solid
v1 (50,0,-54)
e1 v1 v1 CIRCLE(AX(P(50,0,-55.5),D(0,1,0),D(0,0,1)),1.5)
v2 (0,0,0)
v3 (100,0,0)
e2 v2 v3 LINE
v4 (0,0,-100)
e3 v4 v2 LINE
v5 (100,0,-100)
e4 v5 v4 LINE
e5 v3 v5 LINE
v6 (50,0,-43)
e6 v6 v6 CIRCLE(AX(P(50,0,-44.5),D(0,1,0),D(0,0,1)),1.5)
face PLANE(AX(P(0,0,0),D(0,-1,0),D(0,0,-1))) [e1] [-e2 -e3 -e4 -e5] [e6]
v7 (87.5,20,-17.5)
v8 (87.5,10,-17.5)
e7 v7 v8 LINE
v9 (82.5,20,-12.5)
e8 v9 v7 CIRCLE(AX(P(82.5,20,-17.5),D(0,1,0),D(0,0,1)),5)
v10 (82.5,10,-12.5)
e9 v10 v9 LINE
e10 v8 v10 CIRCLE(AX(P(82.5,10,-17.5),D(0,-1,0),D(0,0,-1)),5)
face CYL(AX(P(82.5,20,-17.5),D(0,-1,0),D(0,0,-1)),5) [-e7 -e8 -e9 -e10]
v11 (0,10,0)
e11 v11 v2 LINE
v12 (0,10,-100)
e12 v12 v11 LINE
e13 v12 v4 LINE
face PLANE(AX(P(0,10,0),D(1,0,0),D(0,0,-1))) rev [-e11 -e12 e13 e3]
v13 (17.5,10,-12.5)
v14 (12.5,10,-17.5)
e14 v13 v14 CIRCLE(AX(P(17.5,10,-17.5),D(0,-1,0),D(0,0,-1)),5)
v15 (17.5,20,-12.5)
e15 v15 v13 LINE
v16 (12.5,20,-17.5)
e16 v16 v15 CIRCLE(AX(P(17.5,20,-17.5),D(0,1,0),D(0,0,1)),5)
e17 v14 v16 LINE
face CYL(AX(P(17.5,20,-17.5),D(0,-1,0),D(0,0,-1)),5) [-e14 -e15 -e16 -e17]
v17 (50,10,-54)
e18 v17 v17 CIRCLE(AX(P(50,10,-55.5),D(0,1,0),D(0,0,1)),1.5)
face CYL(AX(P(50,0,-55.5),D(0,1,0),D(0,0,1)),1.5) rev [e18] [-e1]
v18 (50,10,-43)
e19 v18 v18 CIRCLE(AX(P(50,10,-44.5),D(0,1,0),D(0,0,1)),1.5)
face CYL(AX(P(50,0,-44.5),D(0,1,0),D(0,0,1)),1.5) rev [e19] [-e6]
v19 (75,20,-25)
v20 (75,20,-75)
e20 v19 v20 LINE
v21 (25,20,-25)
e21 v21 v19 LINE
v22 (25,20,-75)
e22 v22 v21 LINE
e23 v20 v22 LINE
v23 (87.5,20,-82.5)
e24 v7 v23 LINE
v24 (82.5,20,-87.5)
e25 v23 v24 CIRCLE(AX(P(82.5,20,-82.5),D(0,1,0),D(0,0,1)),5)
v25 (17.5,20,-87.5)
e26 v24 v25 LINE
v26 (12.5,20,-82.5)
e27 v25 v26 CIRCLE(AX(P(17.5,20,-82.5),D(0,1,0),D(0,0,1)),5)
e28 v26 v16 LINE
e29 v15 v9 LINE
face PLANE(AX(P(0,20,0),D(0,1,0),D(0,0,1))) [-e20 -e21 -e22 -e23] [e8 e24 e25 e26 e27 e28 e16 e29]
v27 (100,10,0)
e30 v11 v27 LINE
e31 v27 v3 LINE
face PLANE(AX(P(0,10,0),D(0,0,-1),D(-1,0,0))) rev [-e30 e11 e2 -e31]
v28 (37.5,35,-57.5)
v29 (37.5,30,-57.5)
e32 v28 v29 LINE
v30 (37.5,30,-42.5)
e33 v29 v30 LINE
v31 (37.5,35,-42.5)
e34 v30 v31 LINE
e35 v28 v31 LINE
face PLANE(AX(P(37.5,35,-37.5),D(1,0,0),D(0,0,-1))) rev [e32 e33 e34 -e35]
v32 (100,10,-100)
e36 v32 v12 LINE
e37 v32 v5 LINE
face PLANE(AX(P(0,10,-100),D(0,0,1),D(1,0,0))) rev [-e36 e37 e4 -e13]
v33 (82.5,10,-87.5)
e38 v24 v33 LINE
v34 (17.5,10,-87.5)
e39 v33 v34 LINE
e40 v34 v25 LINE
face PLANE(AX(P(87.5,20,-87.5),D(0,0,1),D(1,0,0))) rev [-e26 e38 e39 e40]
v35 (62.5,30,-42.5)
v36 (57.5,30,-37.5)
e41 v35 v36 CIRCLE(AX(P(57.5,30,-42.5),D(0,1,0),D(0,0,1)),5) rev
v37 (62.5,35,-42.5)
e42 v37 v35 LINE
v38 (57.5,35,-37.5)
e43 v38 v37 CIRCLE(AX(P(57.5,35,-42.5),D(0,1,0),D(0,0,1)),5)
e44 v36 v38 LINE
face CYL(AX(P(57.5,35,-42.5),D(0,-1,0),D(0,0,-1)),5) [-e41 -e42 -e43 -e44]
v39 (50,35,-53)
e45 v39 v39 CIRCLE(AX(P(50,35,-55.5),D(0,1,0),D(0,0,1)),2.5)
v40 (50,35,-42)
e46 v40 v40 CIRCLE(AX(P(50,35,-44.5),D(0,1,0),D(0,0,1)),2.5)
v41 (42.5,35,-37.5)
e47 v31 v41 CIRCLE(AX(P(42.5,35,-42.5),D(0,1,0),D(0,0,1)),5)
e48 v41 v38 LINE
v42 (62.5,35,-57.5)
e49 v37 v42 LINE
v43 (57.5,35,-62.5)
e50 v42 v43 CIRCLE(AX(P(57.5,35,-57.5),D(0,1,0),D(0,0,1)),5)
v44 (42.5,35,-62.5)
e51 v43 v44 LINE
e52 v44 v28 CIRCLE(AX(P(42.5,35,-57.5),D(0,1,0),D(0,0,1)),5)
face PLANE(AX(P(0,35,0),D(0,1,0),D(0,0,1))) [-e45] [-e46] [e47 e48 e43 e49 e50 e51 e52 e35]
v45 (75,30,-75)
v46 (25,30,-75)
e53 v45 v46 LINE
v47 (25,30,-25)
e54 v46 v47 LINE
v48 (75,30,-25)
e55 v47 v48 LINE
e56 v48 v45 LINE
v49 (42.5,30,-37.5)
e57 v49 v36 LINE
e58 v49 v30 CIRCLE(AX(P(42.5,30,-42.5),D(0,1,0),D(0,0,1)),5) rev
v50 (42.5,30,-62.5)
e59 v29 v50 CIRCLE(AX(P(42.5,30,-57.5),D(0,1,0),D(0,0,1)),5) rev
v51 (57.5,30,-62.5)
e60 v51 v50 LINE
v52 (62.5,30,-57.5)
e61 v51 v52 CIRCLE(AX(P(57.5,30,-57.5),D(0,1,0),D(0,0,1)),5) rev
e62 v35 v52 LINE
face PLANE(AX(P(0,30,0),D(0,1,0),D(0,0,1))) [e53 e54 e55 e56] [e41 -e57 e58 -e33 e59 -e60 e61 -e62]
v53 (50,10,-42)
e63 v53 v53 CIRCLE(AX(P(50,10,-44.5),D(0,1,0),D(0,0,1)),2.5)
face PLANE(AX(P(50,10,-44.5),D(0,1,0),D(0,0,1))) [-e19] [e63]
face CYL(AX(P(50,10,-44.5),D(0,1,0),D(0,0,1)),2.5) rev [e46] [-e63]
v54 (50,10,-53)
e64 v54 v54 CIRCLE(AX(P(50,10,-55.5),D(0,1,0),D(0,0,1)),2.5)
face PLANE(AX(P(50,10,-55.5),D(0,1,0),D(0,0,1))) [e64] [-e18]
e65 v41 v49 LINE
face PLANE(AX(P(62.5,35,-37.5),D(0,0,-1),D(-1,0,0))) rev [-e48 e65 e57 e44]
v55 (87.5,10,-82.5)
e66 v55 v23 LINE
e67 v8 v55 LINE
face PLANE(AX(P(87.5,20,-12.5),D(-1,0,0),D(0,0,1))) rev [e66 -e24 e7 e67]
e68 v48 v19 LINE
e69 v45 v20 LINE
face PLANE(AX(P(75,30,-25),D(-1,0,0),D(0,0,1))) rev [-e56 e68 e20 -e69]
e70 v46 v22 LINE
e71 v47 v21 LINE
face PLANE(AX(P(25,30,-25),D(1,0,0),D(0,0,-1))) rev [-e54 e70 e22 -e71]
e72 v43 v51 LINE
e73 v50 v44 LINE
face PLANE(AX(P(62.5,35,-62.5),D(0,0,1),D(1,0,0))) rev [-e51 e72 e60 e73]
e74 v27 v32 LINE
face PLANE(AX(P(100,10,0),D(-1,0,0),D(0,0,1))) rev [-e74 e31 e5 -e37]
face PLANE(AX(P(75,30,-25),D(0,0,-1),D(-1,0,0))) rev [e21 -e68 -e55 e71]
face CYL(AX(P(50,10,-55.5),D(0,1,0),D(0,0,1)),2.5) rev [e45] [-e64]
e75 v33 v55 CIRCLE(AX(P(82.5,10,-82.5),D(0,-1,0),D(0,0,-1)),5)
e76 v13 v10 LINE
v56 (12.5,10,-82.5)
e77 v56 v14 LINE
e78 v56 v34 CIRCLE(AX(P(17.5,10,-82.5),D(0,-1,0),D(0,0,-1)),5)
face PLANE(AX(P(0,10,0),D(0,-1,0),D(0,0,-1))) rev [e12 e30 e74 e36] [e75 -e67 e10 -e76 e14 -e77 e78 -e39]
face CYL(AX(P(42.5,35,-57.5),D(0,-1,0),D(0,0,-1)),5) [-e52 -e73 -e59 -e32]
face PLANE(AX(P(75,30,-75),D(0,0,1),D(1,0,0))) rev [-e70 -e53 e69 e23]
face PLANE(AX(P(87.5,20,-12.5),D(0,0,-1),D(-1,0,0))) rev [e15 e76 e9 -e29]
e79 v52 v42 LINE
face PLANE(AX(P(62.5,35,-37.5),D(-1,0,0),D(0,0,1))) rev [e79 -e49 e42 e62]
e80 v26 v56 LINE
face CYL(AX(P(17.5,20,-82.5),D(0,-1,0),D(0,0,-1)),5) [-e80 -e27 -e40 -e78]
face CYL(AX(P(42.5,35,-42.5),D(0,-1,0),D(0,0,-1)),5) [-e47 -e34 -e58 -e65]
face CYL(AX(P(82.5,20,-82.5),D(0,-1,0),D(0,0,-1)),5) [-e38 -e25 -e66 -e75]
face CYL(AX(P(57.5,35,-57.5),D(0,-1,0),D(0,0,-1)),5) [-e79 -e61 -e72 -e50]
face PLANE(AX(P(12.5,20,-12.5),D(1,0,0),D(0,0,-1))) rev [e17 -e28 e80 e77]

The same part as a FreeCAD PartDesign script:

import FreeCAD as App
import Part
import Sketcher
from FreeCAD import Vector
Q = App.Units.Quantity


def edges_at(feature, points):
    """Names of the edges that pass closest to the given points."""
    edges = feature.Shape.Edges
    near = lambda p: min(range(len(edges)), key=lambda i: edges[i].distToShape(Part.Vertex(*p))[0])
    return sorted({f"Edge{near(p) + 1}" for p in points})

doc = App.newDocument("Part")
body = doc.addObject("PartDesign::Body", "Body")

# Sketch on XZ plane
sketch1 = doc.addObject("Sketcher::SketchObject", "Sketch")
body.addObject(sketch1)
sketch1.AttachmentSupport = (doc.XZ_Plane, [""])
sketch1.MapMode = "FlatFace"
sketch1.addGeometry([
    Part.LineSegment(Vector(0, -100, 0), Vector(0, 0, 0)),
    Part.LineSegment(Vector(0, 0, 0), Vector(100, 0, 0)),
    Part.LineSegment(Vector(100, 0, 0), Vector(100, -100, 0)),
    Part.LineSegment(Vector(100, -100, 0), Vector(0, -100, 0)),
], False)
sketch1.addConstraint([
    Sketcher.Constraint("Coincident", 0, 2, 1, 1),
    Sketcher.Constraint("Coincident", 1, 2, 2, 1),
    Sketcher.Constraint("Coincident", 2, 2, 3, 1),
    Sketcher.Constraint("Coincident", 3, 2, 0, 1),
    Sketcher.Constraint("Vertical", 0),
    Sketcher.Constraint("Horizontal", 1),
    Sketcher.Constraint("Vertical", 2),
    Sketcher.Constraint("Horizontal", 3),
    Sketcher.Constraint("Coincident", 0, 2, -1, 1),
    Sketcher.Constraint("Equal", 3, 0),
    Sketcher.Constraint("DistanceX", 1, 1, 1, 2, Q("100 mm")),
])
pad1 = doc.addObject("PartDesign::Pad", "Pad")
body.addObject(pad1)
pad1.Profile = sketch1
pad1.Length = 10
pad1.Reversed = True

# Sketch on XZ plane
sketch2 = doc.addObject("Sketcher::SketchObject", "Sketch001")
body.addObject(sketch2)
sketch2.AttachmentSupport = (doc.XZ_Plane, [""])
sketch2.MapMode = "FlatFace"
sketch2.AttachmentOffset = App.Placement(Vector(0, 0, -10), App.Rotation())
sketch2.addGeometry([
    Part.LineSegment(Vector(12, -88, 0), Vector(12, -12, 0)),
    Part.LineSegment(Vector(12, -12, 0), Vector(88, -12, 0)),
    Part.LineSegment(Vector(88, -12, 0), Vector(88, -88, 0)),
    Part.LineSegment(Vector(88, -88, 0), Vector(12, -88, 0)),
], False)
sketch2.addConstraint([
    Sketcher.Constraint("Coincident", 0, 2, 1, 1),
    Sketcher.Constraint("Coincident", 1, 2, 2, 1),
    Sketcher.Constraint("Coincident", 2, 2, 3, 1),
    Sketcher.Constraint("Coincident", 3, 2, 0, 1),
    Sketcher.Constraint("Vertical", 0),
    Sketcher.Constraint("Horizontal", 1),
    Sketcher.Constraint("Vertical", 2),
    Sketcher.Constraint("Horizontal", 3),
    Sketcher.Constraint("Equal", 3, 0),
    Sketcher.Constraint("DistanceX", 1, 1, 1, 2, Q("75 mm")),
    Sketcher.Constraint("DistanceX", -1, 1, 0, 2, Q("12.5 mm")),
    Sketcher.Constraint("DistanceY", 0, 2, -1, 1, Q("12.5 mm")),
])
pad2 = doc.addObject("PartDesign::Pad", "Pad001")
body.addObject(pad2)
pad2.Profile = sketch2
pad2.Length = 10
pad2.Reversed = True

# Sketch on XZ plane
sketch3 = doc.addObject("Sketcher::SketchObject", "Sketch002")
body.addObject(sketch3)
sketch3.AttachmentSupport = (doc.XZ_Plane, [""])
sketch3.MapMode = "FlatFace"
sketch3.AttachmentOffset = App.Placement(Vector(0, 0, -20), App.Rotation())
sketch3.addGeometry([
    Part.LineSegment(Vector(25, -75, 0), Vector(25, -25, 0)),
    Part.LineSegment(Vector(25, -25, 0), Vector(75, -25, 0)),
    Part.LineSegment(Vector(75, -25, 0), Vector(75, -75, 0)),
    Part.LineSegment(Vector(75, -75, 0), Vector(25, -75, 0)),
], False)
sketch3.addConstraint([
    Sketcher.Constraint("Coincident", 0, 2, 1, 1),
    Sketcher.Constraint("Coincident", 1, 2, 2, 1),
    Sketcher.Constraint("Coincident", 2, 2, 3, 1),
    Sketcher.Constraint("Coincident", 3, 2, 0, 1),
    Sketcher.Constraint("Vertical", 0),
    Sketcher.Constraint("Horizontal", 1),
    Sketcher.Constraint("Vertical", 2),
    Sketcher.Constraint("Horizontal", 3),
    Sketcher.Constraint("Equal", 3, 0),
    Sketcher.Constraint("DistanceX", 1, 1, 1, 2, Q("50 mm")),
    Sketcher.Constraint("DistanceX", -1, 1, 0, 2, Q("25 mm")),
    Sketcher.Constraint("DistanceY", 0, 2, -1, 1, Q("25 mm")),
])
pad3 = doc.addObject("PartDesign::Pad", "Pad002")
body.addObject(pad3)
pad3.Profile = sketch3
pad3.Length = 10
pad3.Reversed = True

# Sketch on XZ plane
sketch4 = doc.addObject("Sketcher::SketchObject", "Sketch003")
body.addObject(sketch4)
sketch4.AttachmentSupport = (doc.XZ_Plane, [""])
sketch4.MapMode = "FlatFace"
sketch4.AttachmentOffset = App.Placement(Vector(0, 0, -30), App.Rotation())
sketch4.addGeometry([
    Part.LineSegment(Vector(38, -62, 0), Vector(38, -38, 0)),
    Part.LineSegment(Vector(38, -38, 0), Vector(62, -38, 0)),
    Part.LineSegment(Vector(62, -38, 0), Vector(62, -62, 0)),
    Part.LineSegment(Vector(62, -62, 0), Vector(38, -62, 0)),
], False)
sketch4.addConstraint([
    Sketcher.Constraint("Coincident", 0, 2, 1, 1),
    Sketcher.Constraint("Coincident", 1, 2, 2, 1),
    Sketcher.Constraint("Coincident", 2, 2, 3, 1),
    Sketcher.Constraint("Coincident", 3, 2, 0, 1),
    Sketcher.Constraint("Vertical", 0),
    Sketcher.Constraint("Horizontal", 1),
    Sketcher.Constraint("Vertical", 2),
    Sketcher.Constraint("Horizontal", 3),
    Sketcher.Constraint("Equal", 3, 0),
    Sketcher.Constraint("DistanceX", 1, 1, 1, 2, Q("25 mm")),
    Sketcher.Constraint("DistanceX", -1, 1, 0, 2, Q("37.5 mm")),
    Sketcher.Constraint("DistanceY", 0, 2, -1, 1, Q("37.5 mm")),
])
pad4 = doc.addObject("PartDesign::Pad", "Pad003")
body.addObject(pad4)
pad4.Profile = sketch4
pad4.Length = 5
pad4.Reversed = True

# Sketch on XZ plane
sketch5 = doc.addObject("Sketcher::SketchObject", "Sketch004")
body.addObject(sketch5)
sketch5.AttachmentSupport = (doc.XZ_Plane, [""])
sketch5.MapMode = "FlatFace"
sketch5.AttachmentOffset = App.Placement(Vector(0, 0, -35), App.Rotation())
sketch5.addGeometry([
    Part.Circle(Vector(50, -55.5, 0), Vector(0, 0, 1), 2.5),
    Part.Circle(Vector(50, -44.5, 0), Vector(0, 0, 1), 2.5),
], False)
sketch5.addConstraint([
    Sketcher.Constraint("Equal", 0, 1),
    Sketcher.Constraint("Vertical", 0, 3, 1, 3),
    Sketcher.Constraint("Diameter", 0, Q("5 mm")),
    Sketcher.Constraint("DistanceX", -1, 1, 0, 3, Q("50 mm")),
    Sketcher.Constraint("DistanceY", 0, 3, 1, 3, Q("11 mm")),
    Sketcher.Constraint("DistanceY", 0, 3, -1, 1, Q("55.5 mm")),
])
pocket1 = doc.addObject("PartDesign::Pocket", "Pocket")
body.addObject(pocket1)
pocket1.Profile = sketch5
pocket1.Length = 25
pocket1.Reversed = True

# Sketch on XZ plane
sketch6 = doc.addObject("Sketcher::SketchObject", "Sketch005")
body.addObject(sketch6)
sketch6.AttachmentSupport = (doc.XZ_Plane, [""])
sketch6.MapMode = "FlatFace"
sketch6.AttachmentOffset = App.Placement(Vector(0, 0, -10), App.Rotation())
sketch6.addGeometry([
    Part.Circle(Vector(50, -55.5, 0), Vector(0, 0, 1), 1.5),
    Part.Circle(Vector(50, -44.5, 0), Vector(0, 0, 1), 1.5),
], False)
sketch6.addConstraint([
    Sketcher.Constraint("Equal", 0, 1),
    Sketcher.Constraint("Vertical", 0, 3, 1, 3),
    Sketcher.Constraint("Diameter", 0, Q("3 mm")),
    Sketcher.Constraint("DistanceX", -1, 1, 0, 3, Q("50 mm")),
    Sketcher.Constraint("DistanceY", 0, 3, 1, 3, Q("11 mm")),
    Sketcher.Constraint("DistanceY", 0, 3, -1, 1, Q("55.5 mm")),
])
pocket2 = doc.addObject("PartDesign::Pocket", "Pocket001")
body.addObject(pocket2)
pocket2.Profile = sketch6
pocket2.Length = 10
pocket2.Reversed = True
doc.recompute()

fillet = doc.addObject("PartDesign::Fillet", "Fillet")
body.addObject(fillet)
fillet.Base = (pocket2, edges_at(pocket2, [
    (12.5, 15, -87.5),
    (12.5, 15, -12.5),
    (87.5, 15, -12.5),
    (87.5, 15, -87.5),
    (37.5, 32.5, -62.5),
    (37.5, 32.5, -37.5),
    (62.5, 32.5, -37.5),
    (62.5, 32.5, -62.5),
]))
fillet.Radius = 5

doc.recompute()
